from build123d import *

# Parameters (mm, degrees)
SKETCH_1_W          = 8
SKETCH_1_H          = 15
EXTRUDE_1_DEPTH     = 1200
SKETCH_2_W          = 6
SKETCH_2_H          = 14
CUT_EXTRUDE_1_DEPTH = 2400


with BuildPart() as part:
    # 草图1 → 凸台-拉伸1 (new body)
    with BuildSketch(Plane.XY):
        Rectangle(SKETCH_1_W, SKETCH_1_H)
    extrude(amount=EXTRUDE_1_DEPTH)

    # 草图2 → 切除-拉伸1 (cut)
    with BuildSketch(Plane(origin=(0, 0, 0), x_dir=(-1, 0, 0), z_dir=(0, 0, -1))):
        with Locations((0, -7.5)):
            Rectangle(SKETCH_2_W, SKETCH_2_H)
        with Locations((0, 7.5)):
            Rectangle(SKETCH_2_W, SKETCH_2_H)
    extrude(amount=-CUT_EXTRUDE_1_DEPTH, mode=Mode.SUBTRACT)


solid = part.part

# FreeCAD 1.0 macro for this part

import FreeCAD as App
import Part
import Sketcher


def add_polygon(sketch, points):
    """Adds a closed chain of lines whose ends are joined by coincident constraints."""
    first, n = sketch.GeometryCount, len(points)
    for a, b in zip(points, points[1:] + points[:1]):
        sketch.addGeometry(Part.LineSegment(App.Vector(*a, 0), App.Vector(*b, 0)), False)
    for i in range(n):
        sketch.addConstraint(Sketcher.Constraint("Coincident", first + i, 2, first + (i + 1) % n, 1))

doc = App.newDocument("Part")
body = doc.addObject("PartDesign::Body", "Body")

# Sketch on XY plane
sketch1 = body.newObject("Sketcher::SketchObject", "Sketch")
sketch1.AttachmentSupport = (doc.getObject("XY_Plane"), [""])
sketch1.MapMode = "FlatFace"
add_polygon(sketch1, [(-4, 7.5), (-4, -7.5), (4, -7.5), (4, 7.5)])  # lines 0-3
sketch1.addConstraint([
    Sketcher.Constraint("Vertical", 0),
    Sketcher.Constraint("Horizontal", 1),
    Sketcher.Constraint("Vertical", 2),
    Sketcher.Constraint("Horizontal", 3),
    Sketcher.Constraint("Symmetric", 0, 2, 2, 2, -1, 1),
    Sketcher.Constraint("DistanceX", 1, 1, 1, 2, 8.0),
    Sketcher.Constraint("DistanceY", 0, 2, 0, 1, 15.0),
])
pad1 = body.newObject("PartDesign::Pad", "Pad")
pad1.Profile = sketch1
pad1.Length = 1200

# Sketch on XY plane
sketch2 = body.newObject("Sketcher::SketchObject", "Sketch001")
sketch2.AttachmentSupport = (doc.getObject("XY_Plane"), [""])
sketch2.MapMode = "FlatFace"
add_polygon(sketch2, [(3, -0.5), (3, -14.5), (-3, -14.5), (-3, -0.5)])  # lines 0-3
add_polygon(sketch2, [(3, 14.5), (3, 0.5), (-3, 0.5), (-3, 14.5)])  # lines 4-7
sketch2.addConstraint([
    Sketcher.Constraint("Vertical", 0),
    Sketcher.Constraint("Horizontal", 1),
    Sketcher.Constraint("Vertical", 2),
    Sketcher.Constraint("Horizontal", 3),
    Sketcher.Constraint("Vertical", 4),
    Sketcher.Constraint("Horizontal", 5),
    Sketcher.Constraint("Vertical", 6),
    Sketcher.Constraint("Horizontal", 7),
    Sketcher.Constraint("Symmetric", 2, 2, 4, 2, -1, 1),
    Sketcher.Constraint("Symmetric", 0, 2, 6, 2, -1, 1),
    Sketcher.Constraint("Vertical", 3, 2, 4, 2),
    Sketcher.Constraint("DistanceX", 1, 2, 1, 1, 6.0),
    Sketcher.Constraint("DistanceY", 0, 2, 0, 1, 14.0),
    Sketcher.Constraint("DistanceY", 3, 2, 4, 2, 1.0),
])
pocket1 = body.newObject("PartDesign::Pocket", "Pocket")
pocket1.Profile = sketch2
pocket1.Length = 2400
pocket1.Reversed = True

doc.recompute()
